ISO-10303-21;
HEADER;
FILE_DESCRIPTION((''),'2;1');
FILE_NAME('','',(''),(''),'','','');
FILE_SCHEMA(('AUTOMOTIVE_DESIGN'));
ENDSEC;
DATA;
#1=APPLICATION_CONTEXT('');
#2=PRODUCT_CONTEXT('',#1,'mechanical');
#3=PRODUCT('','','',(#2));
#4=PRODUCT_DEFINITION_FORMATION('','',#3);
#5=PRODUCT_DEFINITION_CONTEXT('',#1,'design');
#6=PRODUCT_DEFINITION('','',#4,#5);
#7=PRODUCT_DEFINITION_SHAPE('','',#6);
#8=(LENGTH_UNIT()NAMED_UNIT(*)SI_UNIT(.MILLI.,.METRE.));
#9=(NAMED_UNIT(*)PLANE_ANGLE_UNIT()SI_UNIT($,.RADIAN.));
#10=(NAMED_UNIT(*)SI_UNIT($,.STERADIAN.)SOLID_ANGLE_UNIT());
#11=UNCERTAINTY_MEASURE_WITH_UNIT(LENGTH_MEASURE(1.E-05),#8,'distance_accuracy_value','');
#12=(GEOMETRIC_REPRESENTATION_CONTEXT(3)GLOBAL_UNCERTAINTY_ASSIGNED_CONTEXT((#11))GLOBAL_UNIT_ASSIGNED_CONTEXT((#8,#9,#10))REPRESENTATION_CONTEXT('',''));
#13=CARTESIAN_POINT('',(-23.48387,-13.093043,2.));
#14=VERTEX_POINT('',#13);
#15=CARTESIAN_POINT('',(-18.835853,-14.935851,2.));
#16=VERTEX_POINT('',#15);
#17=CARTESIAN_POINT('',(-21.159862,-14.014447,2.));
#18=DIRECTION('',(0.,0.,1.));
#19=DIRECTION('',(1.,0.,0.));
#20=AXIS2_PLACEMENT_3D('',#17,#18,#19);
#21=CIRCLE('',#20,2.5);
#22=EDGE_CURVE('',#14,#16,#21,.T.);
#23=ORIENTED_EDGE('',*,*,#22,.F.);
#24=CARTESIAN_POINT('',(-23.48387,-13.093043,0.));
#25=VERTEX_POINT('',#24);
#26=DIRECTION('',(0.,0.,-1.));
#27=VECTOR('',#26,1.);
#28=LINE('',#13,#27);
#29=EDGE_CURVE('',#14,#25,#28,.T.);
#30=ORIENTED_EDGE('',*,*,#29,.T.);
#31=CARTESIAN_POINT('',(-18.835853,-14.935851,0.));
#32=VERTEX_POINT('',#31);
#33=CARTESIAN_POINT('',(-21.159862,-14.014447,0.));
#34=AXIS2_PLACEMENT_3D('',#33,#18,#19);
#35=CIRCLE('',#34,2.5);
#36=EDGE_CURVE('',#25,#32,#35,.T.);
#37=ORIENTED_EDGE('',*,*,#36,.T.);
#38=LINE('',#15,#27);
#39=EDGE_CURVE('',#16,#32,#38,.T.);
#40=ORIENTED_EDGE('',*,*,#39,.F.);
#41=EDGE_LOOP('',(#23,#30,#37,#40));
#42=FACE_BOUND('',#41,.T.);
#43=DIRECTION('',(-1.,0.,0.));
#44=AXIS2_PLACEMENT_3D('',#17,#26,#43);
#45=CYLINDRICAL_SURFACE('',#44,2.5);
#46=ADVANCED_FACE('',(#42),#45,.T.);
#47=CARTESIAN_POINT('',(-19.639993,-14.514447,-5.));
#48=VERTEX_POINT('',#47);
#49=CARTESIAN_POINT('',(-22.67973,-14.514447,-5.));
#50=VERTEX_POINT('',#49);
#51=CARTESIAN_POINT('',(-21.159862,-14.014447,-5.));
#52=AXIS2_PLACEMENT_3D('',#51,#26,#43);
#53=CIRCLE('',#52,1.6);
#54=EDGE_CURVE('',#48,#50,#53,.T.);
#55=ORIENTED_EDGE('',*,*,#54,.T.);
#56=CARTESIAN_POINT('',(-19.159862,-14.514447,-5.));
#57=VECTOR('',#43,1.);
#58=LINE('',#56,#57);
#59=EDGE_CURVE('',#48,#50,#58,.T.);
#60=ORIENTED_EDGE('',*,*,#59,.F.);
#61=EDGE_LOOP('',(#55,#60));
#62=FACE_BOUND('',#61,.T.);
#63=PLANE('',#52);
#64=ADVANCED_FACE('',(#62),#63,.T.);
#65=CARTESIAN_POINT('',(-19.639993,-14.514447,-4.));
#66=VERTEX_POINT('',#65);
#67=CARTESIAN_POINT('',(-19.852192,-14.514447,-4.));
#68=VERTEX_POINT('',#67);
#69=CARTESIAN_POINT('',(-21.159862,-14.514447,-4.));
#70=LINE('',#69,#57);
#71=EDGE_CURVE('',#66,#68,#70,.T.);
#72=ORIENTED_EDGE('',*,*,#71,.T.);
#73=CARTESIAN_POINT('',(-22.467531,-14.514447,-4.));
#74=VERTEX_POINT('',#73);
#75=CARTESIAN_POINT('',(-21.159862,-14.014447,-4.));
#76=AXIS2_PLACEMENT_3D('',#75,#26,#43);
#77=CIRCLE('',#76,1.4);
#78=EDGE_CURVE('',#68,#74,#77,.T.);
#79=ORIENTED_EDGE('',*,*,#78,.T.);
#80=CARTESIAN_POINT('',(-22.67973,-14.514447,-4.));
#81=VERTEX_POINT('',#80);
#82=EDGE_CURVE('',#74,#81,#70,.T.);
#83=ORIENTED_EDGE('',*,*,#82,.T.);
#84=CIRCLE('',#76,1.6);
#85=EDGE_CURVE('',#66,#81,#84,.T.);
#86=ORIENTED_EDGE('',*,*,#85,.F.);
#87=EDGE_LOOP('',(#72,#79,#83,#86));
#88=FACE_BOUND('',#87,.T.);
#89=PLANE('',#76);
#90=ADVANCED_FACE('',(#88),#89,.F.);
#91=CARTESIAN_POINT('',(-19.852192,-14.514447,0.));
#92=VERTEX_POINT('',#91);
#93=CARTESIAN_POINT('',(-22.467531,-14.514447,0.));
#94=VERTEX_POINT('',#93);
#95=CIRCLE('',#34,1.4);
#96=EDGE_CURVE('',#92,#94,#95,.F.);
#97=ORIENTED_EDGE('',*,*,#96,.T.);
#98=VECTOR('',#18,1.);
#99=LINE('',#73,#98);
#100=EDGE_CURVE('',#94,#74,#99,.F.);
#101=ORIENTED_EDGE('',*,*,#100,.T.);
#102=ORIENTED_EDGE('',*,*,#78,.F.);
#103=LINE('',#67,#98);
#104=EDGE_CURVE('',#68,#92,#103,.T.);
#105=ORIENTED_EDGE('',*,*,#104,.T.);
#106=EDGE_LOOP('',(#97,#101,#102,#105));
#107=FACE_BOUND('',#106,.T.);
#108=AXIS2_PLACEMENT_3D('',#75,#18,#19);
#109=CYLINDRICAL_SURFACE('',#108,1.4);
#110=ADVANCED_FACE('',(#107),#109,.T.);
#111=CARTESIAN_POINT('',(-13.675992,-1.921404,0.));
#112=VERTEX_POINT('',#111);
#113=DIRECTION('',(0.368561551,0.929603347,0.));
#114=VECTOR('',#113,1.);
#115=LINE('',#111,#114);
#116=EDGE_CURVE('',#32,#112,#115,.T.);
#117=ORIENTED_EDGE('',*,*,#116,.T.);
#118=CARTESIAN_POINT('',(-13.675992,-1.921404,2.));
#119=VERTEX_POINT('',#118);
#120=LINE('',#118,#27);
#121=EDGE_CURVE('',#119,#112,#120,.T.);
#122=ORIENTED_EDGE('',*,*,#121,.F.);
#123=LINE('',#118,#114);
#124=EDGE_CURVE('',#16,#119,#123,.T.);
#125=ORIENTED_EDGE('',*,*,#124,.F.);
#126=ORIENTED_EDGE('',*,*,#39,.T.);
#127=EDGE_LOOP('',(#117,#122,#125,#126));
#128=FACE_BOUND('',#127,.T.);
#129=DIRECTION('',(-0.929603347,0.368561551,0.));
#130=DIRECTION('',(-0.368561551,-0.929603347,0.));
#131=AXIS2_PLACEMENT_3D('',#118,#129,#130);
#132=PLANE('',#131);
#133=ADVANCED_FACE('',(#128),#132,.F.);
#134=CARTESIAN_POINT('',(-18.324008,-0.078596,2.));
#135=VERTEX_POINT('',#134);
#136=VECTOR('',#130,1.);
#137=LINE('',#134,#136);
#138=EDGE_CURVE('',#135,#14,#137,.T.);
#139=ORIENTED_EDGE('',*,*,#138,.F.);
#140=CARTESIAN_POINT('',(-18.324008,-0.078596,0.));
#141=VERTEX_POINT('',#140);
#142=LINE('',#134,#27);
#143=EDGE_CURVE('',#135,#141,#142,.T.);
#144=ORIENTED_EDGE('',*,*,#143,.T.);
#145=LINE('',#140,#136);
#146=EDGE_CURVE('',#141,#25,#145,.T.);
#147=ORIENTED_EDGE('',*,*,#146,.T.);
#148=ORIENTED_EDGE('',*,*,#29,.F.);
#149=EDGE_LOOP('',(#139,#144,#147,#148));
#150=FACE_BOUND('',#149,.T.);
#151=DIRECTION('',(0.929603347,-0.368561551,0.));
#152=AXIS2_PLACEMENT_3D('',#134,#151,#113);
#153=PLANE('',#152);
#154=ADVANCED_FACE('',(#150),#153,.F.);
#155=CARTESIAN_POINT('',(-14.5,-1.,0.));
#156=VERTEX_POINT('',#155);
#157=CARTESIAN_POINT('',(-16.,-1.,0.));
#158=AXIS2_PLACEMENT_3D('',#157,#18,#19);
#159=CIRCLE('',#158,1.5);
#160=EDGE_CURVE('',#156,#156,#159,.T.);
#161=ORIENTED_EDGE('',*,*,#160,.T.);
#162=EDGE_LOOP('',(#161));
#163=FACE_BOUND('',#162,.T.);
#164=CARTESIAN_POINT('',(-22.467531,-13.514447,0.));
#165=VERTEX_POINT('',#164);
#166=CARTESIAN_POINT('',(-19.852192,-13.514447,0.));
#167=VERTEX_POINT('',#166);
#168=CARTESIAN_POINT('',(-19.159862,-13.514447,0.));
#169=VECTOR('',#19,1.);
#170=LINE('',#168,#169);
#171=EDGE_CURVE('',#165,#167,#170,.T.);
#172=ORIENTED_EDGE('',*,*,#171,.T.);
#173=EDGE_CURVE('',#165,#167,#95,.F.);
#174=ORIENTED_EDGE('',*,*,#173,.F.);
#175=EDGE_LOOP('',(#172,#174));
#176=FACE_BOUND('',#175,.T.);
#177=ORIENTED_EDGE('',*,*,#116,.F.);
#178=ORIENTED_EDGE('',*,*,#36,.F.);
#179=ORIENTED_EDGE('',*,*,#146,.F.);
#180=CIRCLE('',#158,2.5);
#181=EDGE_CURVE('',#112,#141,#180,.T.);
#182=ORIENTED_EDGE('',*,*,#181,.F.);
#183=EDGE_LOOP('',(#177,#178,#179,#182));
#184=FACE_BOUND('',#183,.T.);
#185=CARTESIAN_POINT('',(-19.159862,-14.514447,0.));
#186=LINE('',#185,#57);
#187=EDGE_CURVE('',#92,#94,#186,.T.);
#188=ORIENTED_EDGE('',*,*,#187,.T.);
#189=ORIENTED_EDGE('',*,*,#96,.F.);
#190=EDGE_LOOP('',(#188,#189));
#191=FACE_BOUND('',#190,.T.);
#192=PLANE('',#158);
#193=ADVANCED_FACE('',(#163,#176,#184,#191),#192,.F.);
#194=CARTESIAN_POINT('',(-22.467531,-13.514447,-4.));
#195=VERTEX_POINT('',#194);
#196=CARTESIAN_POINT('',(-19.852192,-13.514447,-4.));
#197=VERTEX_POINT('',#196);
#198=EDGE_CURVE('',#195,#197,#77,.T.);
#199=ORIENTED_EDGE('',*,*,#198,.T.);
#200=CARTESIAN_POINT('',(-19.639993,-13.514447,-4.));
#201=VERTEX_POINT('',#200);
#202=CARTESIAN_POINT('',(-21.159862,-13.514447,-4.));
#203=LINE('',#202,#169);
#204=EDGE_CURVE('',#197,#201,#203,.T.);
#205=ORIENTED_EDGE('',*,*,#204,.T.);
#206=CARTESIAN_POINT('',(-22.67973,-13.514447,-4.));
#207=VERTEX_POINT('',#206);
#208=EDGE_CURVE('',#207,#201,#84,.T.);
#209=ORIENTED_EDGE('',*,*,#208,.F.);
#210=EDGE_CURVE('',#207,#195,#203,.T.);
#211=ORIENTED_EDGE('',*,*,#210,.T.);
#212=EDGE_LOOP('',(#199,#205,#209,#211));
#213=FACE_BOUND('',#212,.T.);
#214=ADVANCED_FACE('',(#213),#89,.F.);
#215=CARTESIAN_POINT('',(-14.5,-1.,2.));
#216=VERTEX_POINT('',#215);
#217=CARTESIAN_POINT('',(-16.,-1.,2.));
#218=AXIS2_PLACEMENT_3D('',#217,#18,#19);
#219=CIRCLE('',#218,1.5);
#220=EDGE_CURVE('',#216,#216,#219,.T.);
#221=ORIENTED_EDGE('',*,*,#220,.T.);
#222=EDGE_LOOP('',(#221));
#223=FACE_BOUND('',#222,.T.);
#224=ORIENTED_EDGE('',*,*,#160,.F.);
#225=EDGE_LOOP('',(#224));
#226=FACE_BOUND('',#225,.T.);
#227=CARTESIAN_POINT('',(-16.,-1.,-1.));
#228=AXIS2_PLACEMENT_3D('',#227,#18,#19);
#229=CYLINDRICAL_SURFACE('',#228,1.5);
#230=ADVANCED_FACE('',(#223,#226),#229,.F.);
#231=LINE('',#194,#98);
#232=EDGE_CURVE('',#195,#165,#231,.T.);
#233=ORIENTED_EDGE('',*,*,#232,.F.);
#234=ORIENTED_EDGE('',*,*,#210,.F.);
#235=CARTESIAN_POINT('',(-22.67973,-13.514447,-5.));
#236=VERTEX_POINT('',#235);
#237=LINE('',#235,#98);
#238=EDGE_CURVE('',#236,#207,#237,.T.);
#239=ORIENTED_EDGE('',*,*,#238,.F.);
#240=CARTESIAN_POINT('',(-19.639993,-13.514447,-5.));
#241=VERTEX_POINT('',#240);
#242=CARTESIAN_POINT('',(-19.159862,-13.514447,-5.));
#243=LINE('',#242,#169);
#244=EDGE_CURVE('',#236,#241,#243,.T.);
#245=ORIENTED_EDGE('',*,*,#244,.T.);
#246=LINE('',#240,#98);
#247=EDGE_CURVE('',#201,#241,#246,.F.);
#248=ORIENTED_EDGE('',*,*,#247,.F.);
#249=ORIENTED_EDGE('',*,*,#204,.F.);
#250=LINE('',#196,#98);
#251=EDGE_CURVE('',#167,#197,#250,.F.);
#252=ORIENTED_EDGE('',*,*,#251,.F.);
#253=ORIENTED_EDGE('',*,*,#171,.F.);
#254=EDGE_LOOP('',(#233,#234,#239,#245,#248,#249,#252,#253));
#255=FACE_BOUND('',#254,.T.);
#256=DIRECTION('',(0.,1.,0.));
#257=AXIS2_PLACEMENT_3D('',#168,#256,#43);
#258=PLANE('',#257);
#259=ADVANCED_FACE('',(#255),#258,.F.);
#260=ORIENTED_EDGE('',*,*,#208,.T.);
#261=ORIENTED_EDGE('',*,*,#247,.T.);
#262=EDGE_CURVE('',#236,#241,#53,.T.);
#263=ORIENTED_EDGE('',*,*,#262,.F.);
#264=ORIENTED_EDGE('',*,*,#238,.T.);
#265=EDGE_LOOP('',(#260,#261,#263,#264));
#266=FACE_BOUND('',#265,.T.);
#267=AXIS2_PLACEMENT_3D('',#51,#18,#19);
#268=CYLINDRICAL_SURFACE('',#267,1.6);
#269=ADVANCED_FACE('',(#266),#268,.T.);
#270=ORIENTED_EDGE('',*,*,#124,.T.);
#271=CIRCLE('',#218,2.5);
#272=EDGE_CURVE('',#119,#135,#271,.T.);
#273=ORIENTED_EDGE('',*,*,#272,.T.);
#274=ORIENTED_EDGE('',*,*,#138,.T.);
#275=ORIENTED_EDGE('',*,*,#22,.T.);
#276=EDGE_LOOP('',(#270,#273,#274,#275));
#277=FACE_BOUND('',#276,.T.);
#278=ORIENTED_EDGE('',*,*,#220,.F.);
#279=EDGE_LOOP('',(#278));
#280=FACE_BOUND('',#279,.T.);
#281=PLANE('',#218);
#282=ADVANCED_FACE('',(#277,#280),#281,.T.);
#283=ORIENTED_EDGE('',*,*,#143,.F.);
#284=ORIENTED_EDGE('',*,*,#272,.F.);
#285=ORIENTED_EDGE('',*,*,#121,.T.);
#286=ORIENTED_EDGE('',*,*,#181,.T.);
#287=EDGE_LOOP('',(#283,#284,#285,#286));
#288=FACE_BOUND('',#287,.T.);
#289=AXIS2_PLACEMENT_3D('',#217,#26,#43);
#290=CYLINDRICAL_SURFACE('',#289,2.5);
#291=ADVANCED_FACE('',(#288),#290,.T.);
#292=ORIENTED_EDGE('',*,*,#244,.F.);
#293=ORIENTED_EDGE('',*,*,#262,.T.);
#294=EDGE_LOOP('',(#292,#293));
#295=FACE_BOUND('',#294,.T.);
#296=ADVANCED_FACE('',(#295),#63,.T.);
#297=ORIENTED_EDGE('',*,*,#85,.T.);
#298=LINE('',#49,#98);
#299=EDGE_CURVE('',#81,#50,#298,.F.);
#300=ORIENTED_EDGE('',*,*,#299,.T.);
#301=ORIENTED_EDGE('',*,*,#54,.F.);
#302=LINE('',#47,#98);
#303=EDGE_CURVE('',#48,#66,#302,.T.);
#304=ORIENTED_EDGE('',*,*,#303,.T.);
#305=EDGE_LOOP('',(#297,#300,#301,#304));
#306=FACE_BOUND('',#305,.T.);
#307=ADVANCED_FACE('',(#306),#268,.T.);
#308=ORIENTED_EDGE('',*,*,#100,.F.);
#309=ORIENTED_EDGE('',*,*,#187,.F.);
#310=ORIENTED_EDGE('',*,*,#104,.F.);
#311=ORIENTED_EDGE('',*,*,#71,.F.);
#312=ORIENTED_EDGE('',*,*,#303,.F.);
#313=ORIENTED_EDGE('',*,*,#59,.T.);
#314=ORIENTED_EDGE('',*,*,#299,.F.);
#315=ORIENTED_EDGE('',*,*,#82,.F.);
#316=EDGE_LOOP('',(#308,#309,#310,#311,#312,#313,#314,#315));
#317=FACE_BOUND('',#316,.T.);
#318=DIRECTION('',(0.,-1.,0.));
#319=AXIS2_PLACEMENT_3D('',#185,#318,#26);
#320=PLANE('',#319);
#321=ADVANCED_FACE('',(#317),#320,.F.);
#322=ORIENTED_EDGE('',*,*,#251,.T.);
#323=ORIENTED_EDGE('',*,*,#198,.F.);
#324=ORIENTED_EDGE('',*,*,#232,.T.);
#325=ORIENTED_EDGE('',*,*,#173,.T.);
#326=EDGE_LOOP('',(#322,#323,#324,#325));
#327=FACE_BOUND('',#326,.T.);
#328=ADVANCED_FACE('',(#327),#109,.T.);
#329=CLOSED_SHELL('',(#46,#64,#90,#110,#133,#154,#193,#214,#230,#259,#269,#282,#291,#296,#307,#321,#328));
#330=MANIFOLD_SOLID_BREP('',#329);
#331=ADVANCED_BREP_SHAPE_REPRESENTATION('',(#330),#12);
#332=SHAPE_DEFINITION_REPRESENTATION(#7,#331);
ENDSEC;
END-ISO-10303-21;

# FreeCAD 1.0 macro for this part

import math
import FreeCAD as App
import Part
import Sketcher


def add_polygon(sketch, points):
    """Adds a closed chain of lines whose ends are joined by coincident constraints."""
    first, n = sketch.GeometryCount, len(points)
    for a, b in zip(points, points[1:] + points[:1]):
        sketch.addGeometry(Part.LineSegment(App.Vector(*a, 0), App.Vector(*b, 0)), False)
    for i in range(n):
        sketch.addConstraint(Sketcher.Constraint("Coincident", first + i, 2, first + (i + 1) % n, 1))

doc = App.newDocument("Part")
body = doc.addObject("PartDesign::Body", "Body")

# Sketch on XY plane
sketch1 = doc.addObject("Sketcher::SketchObject", "Sketch")
body.addObject(sketch1)
sketch1.AttachmentSupport = (doc.XY_Plane, [""])
sketch1.MapMode = "FlatFace"
sketch1.addGeometry([
    Part.LineSegment(App.Vector(-18.835853, -14.935851, 0), App.Vector(-13.675992, -1.921404, 0)),
    Part.ArcOfCircle(Part.Circle(App.Vector(-16, -1, 0), App.Vector(0, 0, 1), 2.5), math.radians(-21.626932), math.radians(158.373068)),
    Part.LineSegment(App.Vector(-18.324008, -0.078596, 0), App.Vector(-23.48387, -13.093043, 0)),
    Part.ArcOfCircle(Part.Circle(App.Vector(-21.159862, -14.014447, 0), App.Vector(0, 0, 1), 2.5), math.radians(158.373068), math.radians(338.373068)),
], False)
sketch1.addConstraint([
    Sketcher.Constraint("Tangent", 0, 2, 1, 1),
    Sketcher.Constraint("Tangent", 1, 2, 2, 1),
    Sketcher.Constraint("Tangent", 2, 2, 3, 1),
    Sketcher.Constraint("Tangent", 3, 2, 0, 1),
    Sketcher.Constraint("Equal", 1, 3),
    Sketcher.Constraint("Radius", 1, 2.5),
    Sketcher.Constraint("Distance", 0, 14.0),
    Sketcher.Constraint("DistanceX", 1, 3, -1, 1, 16.0),
    Sketcher.Constraint("DistanceY", 1, 3, -1, 1, 1.0),
    Sketcher.Constraint("DistanceX", 3, 3, -1, 1, 21.159862),
])
pad1 = doc.addObject("PartDesign::Pad", "Pad")
body.addObject(pad1)
pad1.Profile = sketch1
pad1.Length = 2

# Sketch on XY plane
sketch2 = doc.addObject("Sketcher::SketchObject", "Sketch001")
body.addObject(sketch2)
sketch2.AttachmentSupport = (doc.XY_Plane, [""])
sketch2.MapMode = "FlatFace"
sketch2.AttachmentOffset = App.Placement(App.Vector(0, 0, 2), App.Rotation())
sketch2.addGeometry(Part.Circle(App.Vector(-16, -1, 0), App.Vector(0, 0, 1), 1.5), False)
sketch2.addConstraint([
    Sketcher.Constraint("Diameter", 0, 3.0),
    Sketcher.Constraint("DistanceX", 0, 3, -1, 1, 16.0),
    Sketcher.Constraint("DistanceY", 0, 3, -1, 1, 1.0),
])
pocket1 = doc.addObject("PartDesign::Pocket", "Pocket")
body.addObject(pocket1)
pocket1.Profile = sketch2
pocket1.Length = 3

# Sketch on XY plane
sketch3 = doc.addObject("Sketcher::SketchObject", "Sketch002")
body.addObject(sketch3)
sketch3.AttachmentSupport = (doc.XY_Plane, [""])
sketch3.MapMode = "FlatFace"
sketch3.addGeometry(Part.Circle(App.Vector(-21.159862, -14.014447, 0), App.Vector(0, 0, 1), 1.4), False)
sketch3.addConstraint([
    Sketcher.Constraint("Diameter", 0, 2.8),
    Sketcher.Constraint("DistanceX", 0, 3, -1, 1, 21.159862),
    Sketcher.Constraint("DistanceY", 0, 3, -1, 1, 14.014447),
])
pad2 = doc.addObject("PartDesign::Pad", "Pad001")
body.addObject(pad2)
pad2.Profile = sketch3
pad2.Length = 4
pad2.Reversed = True

# Sketch on XY plane
sketch4 = doc.addObject("Sketcher::SketchObject", "Sketch003")
body.addObject(sketch4)
sketch4.AttachmentSupport = (doc.XY_Plane, [""])
sketch4.MapMode = "FlatFace"
sketch4.AttachmentOffset = App.Placement(App.Vector(0, 0, -4), App.Rotation())
sketch4.addGeometry(Part.Circle(App.Vector(-21.159862, -14.014447, 0), App.Vector(0, 0, 1), 1.6), False)
sketch4.addConstraint([
    Sketcher.Constraint("Diameter", 0, 3.2),
    Sketcher.Constraint("DistanceX", 0, 3, -1, 1, 21.159862),
    Sketcher.Constraint("DistanceY", 0, 3, -1, 1, 14.014447),
])
pad3 = doc.addObject("PartDesign::Pad", "Pad002")
body.addObject(pad3)
pad3.Profile = sketch4
pad3.Length = 1
pad3.Reversed = True

# Sketch on XY plane
sketch5 = doc.addObject("Sketcher::SketchObject", "Sketch004")
body.addObject(sketch5)
sketch5.AttachmentSupport = (doc.XY_Plane, [""])
sketch5.MapMode = "FlatFace"
sketch5.AttachmentOffset = App.Placement(App.Vector(0, 0, -5), App.Rotation())
add_polygon(sketch5, [(-19.159862, -13.514447), (-19.159862, -14.514447), (-23.159862, -14.514447), (-23.159862, -13.514447)])  # lines 0-3
sketch5.addConstraint([
    Sketcher.Constraint("Vertical", 0),
    Sketcher.Constraint("Horizontal", 1),
    Sketcher.Constraint("Vertical", 2),
    Sketcher.Constraint("Horizontal", 3),
    Sketcher.Constraint("DistanceX", 1, 2, 1, 1, 4.0),
    Sketcher.Constraint("DistanceY", 0, 2, 0, 1, 1.0),
    Sketcher.Constraint("DistanceX", 0, 2, -1, 1, 19.159862),
    Sketcher.Constraint("DistanceY", 0, 2, -1, 1, 14.514447),
])
pocket2 = doc.addObject("PartDesign::Pocket", "Pocket001")
body.addObject(pocket2)
pocket2.Profile = sketch5
pocket2.Length = 5
pocket2.Reversed = True

doc.recompute()
